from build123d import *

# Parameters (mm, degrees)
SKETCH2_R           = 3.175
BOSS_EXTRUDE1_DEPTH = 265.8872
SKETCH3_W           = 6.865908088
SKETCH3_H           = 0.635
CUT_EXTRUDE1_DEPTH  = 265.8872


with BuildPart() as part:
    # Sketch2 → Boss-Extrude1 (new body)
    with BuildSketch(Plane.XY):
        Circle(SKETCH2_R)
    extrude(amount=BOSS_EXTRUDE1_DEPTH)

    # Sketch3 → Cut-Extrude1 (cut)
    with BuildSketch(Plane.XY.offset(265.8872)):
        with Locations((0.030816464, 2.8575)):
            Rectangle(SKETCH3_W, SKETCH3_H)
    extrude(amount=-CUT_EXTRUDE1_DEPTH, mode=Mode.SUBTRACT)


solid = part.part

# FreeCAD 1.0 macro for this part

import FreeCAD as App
import Part
import Sketcher

V = App.Vector
Q = App.Units.Quantity

doc = App.newDocument("Part")
body = doc.addObject("PartDesign::Body", "Body")

sketch1 = doc.addObject("Sketcher::SketchObject", "Sketch")
body.addObject(sketch1)
sketch1.AttachmentSupport = (doc.XY_Plane, [""])
sketch1.MapMode = "FlatFace"
sketch1.addGeometry(Part.Circle(V(0, 0, 0), V(0, 0, 1), 3.175), False)
sketch1.addConstraint(Sketcher.Constraint("Coincident", 0, 3, -1, 1))
sketch1.addConstraint(Sketcher.Constraint("Diameter", 0, Q("0.25 in")))
pad1 = doc.addObject("PartDesign::Pad", "Pad")
body.addObject(pad1)
pad1.Profile = sketch1
pad1.Length = Q("10.468 in")

sketch2 = doc.addObject("Sketcher::SketchObject", "Sketch001")
body.addObject(sketch2)
sketch2.AttachmentSupport = (doc.XY_Plane, [""])
sketch2.MapMode = "FlatFace"
sketch2.AttachmentOffset = App.Placement(V(0, 0, 10.468 * 25.4), App.Rotation())
sketch2.addGeometry(Part.LineSegment(V(-3.402138, 3.175, 0), V(-3.402138, 2.54, 0)), False)
sketch2.addGeometry(Part.LineSegment(V(-3.402138, 2.54, 0), V(3.463771, 2.54, 0)), False)
sketch2.addGeometry(Part.LineSegment(V(3.463771, 2.54, 0), V(3.463771, 3.175, 0)), False)
sketch2.addGeometry(Part.LineSegment(V(3.463771, 3.175, 0), V(-3.402138, 3.175, 0)), False)
sketch2.addConstraint(Sketcher.Constraint("Coincident", 0, 2, 1, 1))
sketch2.addConstraint(Sketcher.Constraint("Coincident", 1, 2, 2, 1))
sketch2.addConstraint(Sketcher.Constraint("Coincident", 2, 2, 3, 1))
sketch2.addConstraint(Sketcher.Constraint("Coincident", 3, 2, 0, 1))
sketch2.addConstraint(Sketcher.Constraint("Vertical", 0))
sketch2.addConstraint(Sketcher.Constraint("Horizontal", 1))
sketch2.addConstraint(Sketcher.Constraint("Vertical", 2))
sketch2.addConstraint(Sketcher.Constraint("Horizontal", 3))
sketch2.addConstraint(Sketcher.Constraint("DistanceY", -1, 1, 0, 2, Q("0.1 in")))
sketch2.addConstraint(Sketcher.Constraint("DistanceY", 0, 2, 0, 1, Q("0.025 in")))
sketch2.addConstraint(Sketcher.Constraint("DistanceX", 1, 1, 1, 2, 6.865908))
sketch2.addConstraint(Sketcher.Constraint("DistanceX", -1, 1, 1, 2, 3.463771))
pocket1 = doc.addObject("PartDesign::Pocket", "Pocket")
body.addObject(pocket1)
pocket1.Profile = sketch2
pocket1.Length = Q("10.468 in")

doc.recompute()
